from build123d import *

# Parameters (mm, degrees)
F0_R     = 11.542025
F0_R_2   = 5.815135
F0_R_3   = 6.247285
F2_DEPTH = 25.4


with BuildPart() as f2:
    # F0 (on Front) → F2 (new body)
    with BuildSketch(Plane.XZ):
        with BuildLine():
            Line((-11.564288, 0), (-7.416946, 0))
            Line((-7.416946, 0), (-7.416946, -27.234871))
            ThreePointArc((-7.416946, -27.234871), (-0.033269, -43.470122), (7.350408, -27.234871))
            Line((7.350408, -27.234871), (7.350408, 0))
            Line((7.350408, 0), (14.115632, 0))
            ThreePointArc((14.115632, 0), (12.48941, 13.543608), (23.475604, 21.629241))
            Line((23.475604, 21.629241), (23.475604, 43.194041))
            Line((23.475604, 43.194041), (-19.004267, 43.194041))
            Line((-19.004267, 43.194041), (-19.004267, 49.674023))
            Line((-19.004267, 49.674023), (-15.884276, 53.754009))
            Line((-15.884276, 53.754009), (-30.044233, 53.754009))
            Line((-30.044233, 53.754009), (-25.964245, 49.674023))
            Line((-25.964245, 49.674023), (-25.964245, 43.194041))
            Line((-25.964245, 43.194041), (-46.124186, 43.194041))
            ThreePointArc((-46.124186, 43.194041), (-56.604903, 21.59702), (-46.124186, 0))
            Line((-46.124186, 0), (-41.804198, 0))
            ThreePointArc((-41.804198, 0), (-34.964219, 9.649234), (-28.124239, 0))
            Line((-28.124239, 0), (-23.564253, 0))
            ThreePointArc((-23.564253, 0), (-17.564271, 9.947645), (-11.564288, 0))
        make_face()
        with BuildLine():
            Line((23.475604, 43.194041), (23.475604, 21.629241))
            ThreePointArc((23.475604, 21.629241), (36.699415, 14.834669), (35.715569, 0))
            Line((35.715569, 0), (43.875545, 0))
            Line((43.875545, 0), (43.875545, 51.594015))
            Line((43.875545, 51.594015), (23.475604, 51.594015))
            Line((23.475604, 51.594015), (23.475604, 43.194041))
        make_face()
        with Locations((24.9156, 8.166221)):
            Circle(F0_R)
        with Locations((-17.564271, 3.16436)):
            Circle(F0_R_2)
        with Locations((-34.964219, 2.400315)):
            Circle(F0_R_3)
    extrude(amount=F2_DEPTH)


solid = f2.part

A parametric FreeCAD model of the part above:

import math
import FreeCAD as App
import Part
import Sketcher
from FreeCAD import Vector
Q = App.Units.Quantity

doc = App.newDocument("Part")
params = doc.addObject("Spreadsheet::Sheet", "Params")
for row, (alias, value) in enumerate([
    ("pad1_length", "1 in"),
], start=1):
    params.set(f"A{row}", alias)
    params.set(f"B{row}", "=" + value)
    params.setAlias(f"B{row}", alias)

body = doc.addObject("PartDesign::Body", "Body")
body.AllowCompound = True

sketch1 = doc.addObject("Sketcher::SketchObject", "Sketch")
body.addObject(sketch1)
sketch1.AttachmentSupport = (doc.XZ_Plane, [""])
sketch1.MapMode = "FlatFace"
sketch1.addGeometry([
    Part.LineSegment(Vector(-11.6, 0, 0), Vector(-7.4, 0, 0)),
    Part.LineSegment(Vector(-7.4, 0, 0), Vector(-7.4, -27.2, 0)),
    Part.ArcOfCircle(Part.Circle(Vector(0, -33.7, 0), Vector(0, 0, 1), 9.8), math.radians(139), math.radians(401)),
    Part.LineSegment(Vector(7.4, -27.2, 0), Vector(7.4, 0, 0)),
    Part.LineSegment(Vector(7.4, 0, 0), Vector(14.1, 0, 0)),
    Part.ArcOfCircle(Part.Circle(Vector(24.9, 8.2, 0), Vector(0, 0, 1), 13.5), math.radians(96), math.radians(217)),
    Part.ArcOfCircle(Part.Circle(Vector(24.9, 8.2, 0), Vector(0, 0, 1), 13.5), math.radians(-37), math.radians(96)),
    Part.LineSegment(Vector(35.7, 0, 0), Vector(43.9, 0, 0)),
    Part.LineSegment(Vector(43.9, 0, 0), Vector(43.9, 51.6, 0)),
    Part.LineSegment(Vector(43.9, 51.6, 0), Vector(23.5, 51.6, 0)),
    Part.LineSegment(Vector(23.5, 51.6, 0), Vector(23.5, 43.2, 0)),
    Part.LineSegment(Vector(23.5, 43.2, 0), Vector(-19, 43.2, 0)),
    Part.LineSegment(Vector(-19, 43.2, 0), Vector(-19, 49.7, 0)),
    Part.LineSegment(Vector(-19, 49.7, 0), Vector(-15.9, 53.8, 0)),
    Part.LineSegment(Vector(-15.9, 53.8, 0), Vector(-30, 53.8, 0)),
    Part.LineSegment(Vector(-30, 53.8, 0), Vector(-26, 49.7, 0)),
    Part.LineSegment(Vector(-26, 49.7, 0), Vector(-26, 43.2, 0)),
    Part.LineSegment(Vector(-26, 43.2, 0), Vector(-46.1, 43.2, 0)),
    Part.ArcOfCircle(Part.Circle(Vector(-29.1, 21.6, 0), Vector(0, 0, 1), 27.5), math.radians(128), math.radians(232)),
    Part.LineSegment(Vector(-46.1, 0, 0), Vector(-41.8, 0, 0)),
    Part.ArcOfCircle(Part.Circle(Vector(-35, 2.4, 0), Vector(0, 0, 1), 7.2), math.radians(-19), math.radians(199)),
    Part.LineSegment(Vector(-28.1, 0, 0), Vector(-23.6, 0, 0)),
    Part.ArcOfCircle(Part.Circle(Vector(-17.6, 3.2, 0), Vector(0, 0, 1), 6.8), math.radians(-28), math.radians(208)),
    Part.Circle(Vector(24.9, 8.2, 0), Vector(0, 0, 1), 11.5),
    Part.Circle(Vector(-17.6, 3.2, 0), Vector(0, 0, 1), 5.8),
    Part.Circle(Vector(-35, 2.4, 0), Vector(0, 0, 1), 6.2),
], False)
sketch1.addConstraint([
    Sketcher.Constraint("Coincident", 0, 2, 1, 1),
    Sketcher.Constraint("Coincident", 1, 2, 2, 1),
    Sketcher.Constraint("Coincident", 2, 2, 3, 1),
    Sketcher.Constraint("Coincident", 3, 2, 4, 1),
    Sketcher.Constraint("Coincident", 4, 2, 5, 2),
    Sketcher.Constraint("Tangent", 5, 1, 6, 2),
    Sketcher.Constraint("Coincident", 6, 1, 7, 1),
    Sketcher.Constraint("Coincident", 7, 2, 8, 1),
    Sketcher.Constraint("Coincident", 8, 2, 9, 1),
    Sketcher.Constraint("Coincident", 9, 2, 10, 1),
    Sketcher.Constraint("Coincident", 10, 2, 11, 1),
    Sketcher.Constraint("Coincident", 11, 2, 12, 1),
    Sketcher.Constraint("Coincident", 12, 2, 13, 1),
    Sketcher.Constraint("Coincident", 13, 2, 14, 1),
    Sketcher.Constraint("Coincident", 14, 2, 15, 1),
    Sketcher.Constraint("Coincident", 15, 2, 16, 1),
    Sketcher.Constraint("Coincident", 16, 2, 17, 1),
    Sketcher.Constraint("Coincident", 17, 2, 18, 1),
    Sketcher.Constraint("Coincident", 18, 2, 19, 1),
    Sketcher.Constraint("Coincident", 19, 2, 20, 2),
    Sketcher.Constraint("Coincident", 20, 1, 21, 1),
    Sketcher.Constraint("Coincident", 21, 2, 22, 2),
    Sketcher.Constraint("Coincident", 22, 1, 0, 1),
    Sketcher.Constraint("Horizontal", 0),
    Sketcher.Constraint("Vertical", 1),
    Sketcher.Constraint("Vertical", 3),
    Sketcher.Constraint("Horizontal", 4),
    Sketcher.Constraint("Horizontal", 7),
    Sketcher.Constraint("Vertical", 8),
    Sketcher.Constraint("Horizontal", 9),
    Sketcher.Constraint("Vertical", 10),
    Sketcher.Constraint("Horizontal", 11),
    Sketcher.Constraint("Vertical", 12),
    Sketcher.Constraint("Horizontal", 14),
    Sketcher.Constraint("Vertical", 16),
    Sketcher.Constraint("Horizontal", 17),
    Sketcher.Constraint("Horizontal", 19),
    Sketcher.Constraint("Horizontal", 21),
    Sketcher.Constraint("Coincident", 23, 3, 5, 3),
    Sketcher.Constraint("Coincident", 24, 3, 22, 3),
    Sketcher.Constraint("Coincident", 25, 3, 20, 3),
    Sketcher.Constraint("Equal", 5, 6),
    Sketcher.Constraint("PointOnObject", 0, 2, -1),
    Sketcher.Constraint("PointOnObject", 3, 2, -1),
    Sketcher.Constraint("PointOnObject", 6, 1, -1),
    Sketcher.Constraint("PointOnObject", 18, 2, -1),
    Sketcher.Constraint("PointOnObject", 20, 1, -1),
    Sketcher.Constraint("Horizontal", 1, 2, 2, 2),
    Sketcher.Constraint("Horizontal", 12, 2, 15, 2),
    Sketcher.Constraint("Horizontal", 11, 2, 16, 2),
    Sketcher.Constraint("Vertical", 5, 1, 9, 2),
    Sketcher.Constraint("Vertical", 17, 2, 18, 2),
    Sketcher.Constraint("Angle", 15, Q("-44.999986 deg")),
    Sketcher.Constraint("Diameter", 23, 23.08405),
    Sketcher.Constraint("Diameter", 24, 11.63027),
    Sketcher.Constraint("Diameter", 25, 12.49457),
    Sketcher.Constraint("Radius", 5, 13.539811),
    Sketcher.Constraint("Radius", 20, 7.248919),
    Sketcher.Constraint("Radius", 2, 9.796647),
    Sketcher.Constraint("Radius", 18, 27.492238),
    Sketcher.Constraint("Radius", 22, 6.783285),
    Sketcher.Constraint("DistanceX", 0, 1, 0, 2, 4.147342),
    Sketcher.Constraint("DistanceX", 9, 2, 9, 1, 20.399941),
    Sketcher.Constraint("DistanceX", 11, 2, 11, 1, 42.479871),
    Sketcher.Constraint("DistanceX", 17, 2, 17, 1, 20.159941),
    Sketcher.Constraint("DistanceX", 19, 1, 19, 2, 4.319988),
    Sketcher.Constraint("DistanceY", 1, 2, 1, 1, 27.234871),
    Sketcher.Constraint("DistanceY", 12, 1, 12, 2, 6.479982),
    Sketcher.Constraint("DistanceX", -1, 1, 5, 3, 24.9156),
    Sketcher.Constraint("DistanceY", 5, 3, 18, 3, 13.430799),
    Sketcher.Constraint("DistanceX", 22, 3, 2, 3, 17.531001),
    Sketcher.Constraint("DistanceY", 5, 1, 10, 2, 21.5648),
    Sketcher.Constraint("DistanceX", 18, 3, 11, 2, 10.108398),
    Sketcher.Constraint("DistanceX", 4, 1, 4, 2, 6.765224),
    Sketcher.Constraint("DistanceX", 7, 1, 7, 2, 8.159976),
    Sketcher.Constraint("DistanceX", 14, 2, 14, 1, 14.159957),
    Sketcher.Constraint("DistanceX", 21, 1, 21, 2, 4.559986),
    Sketcher.Constraint("DistanceY", 8, 1, 8, 2, 51.594015),
    Sketcher.Constraint("DistanceX", 2, 3, -1, 1, 0.033269),
    Sketcher.Constraint("DistanceY", -1, 1, 13, 2, 53.754009),
])
pad1 = doc.addObject("PartDesign::Pad", "Pad")
body.addObject(pad1)
pad1.Profile = sketch1
pad1.setExpression("Length", "Params.pad1_length")

doc.recompute()
